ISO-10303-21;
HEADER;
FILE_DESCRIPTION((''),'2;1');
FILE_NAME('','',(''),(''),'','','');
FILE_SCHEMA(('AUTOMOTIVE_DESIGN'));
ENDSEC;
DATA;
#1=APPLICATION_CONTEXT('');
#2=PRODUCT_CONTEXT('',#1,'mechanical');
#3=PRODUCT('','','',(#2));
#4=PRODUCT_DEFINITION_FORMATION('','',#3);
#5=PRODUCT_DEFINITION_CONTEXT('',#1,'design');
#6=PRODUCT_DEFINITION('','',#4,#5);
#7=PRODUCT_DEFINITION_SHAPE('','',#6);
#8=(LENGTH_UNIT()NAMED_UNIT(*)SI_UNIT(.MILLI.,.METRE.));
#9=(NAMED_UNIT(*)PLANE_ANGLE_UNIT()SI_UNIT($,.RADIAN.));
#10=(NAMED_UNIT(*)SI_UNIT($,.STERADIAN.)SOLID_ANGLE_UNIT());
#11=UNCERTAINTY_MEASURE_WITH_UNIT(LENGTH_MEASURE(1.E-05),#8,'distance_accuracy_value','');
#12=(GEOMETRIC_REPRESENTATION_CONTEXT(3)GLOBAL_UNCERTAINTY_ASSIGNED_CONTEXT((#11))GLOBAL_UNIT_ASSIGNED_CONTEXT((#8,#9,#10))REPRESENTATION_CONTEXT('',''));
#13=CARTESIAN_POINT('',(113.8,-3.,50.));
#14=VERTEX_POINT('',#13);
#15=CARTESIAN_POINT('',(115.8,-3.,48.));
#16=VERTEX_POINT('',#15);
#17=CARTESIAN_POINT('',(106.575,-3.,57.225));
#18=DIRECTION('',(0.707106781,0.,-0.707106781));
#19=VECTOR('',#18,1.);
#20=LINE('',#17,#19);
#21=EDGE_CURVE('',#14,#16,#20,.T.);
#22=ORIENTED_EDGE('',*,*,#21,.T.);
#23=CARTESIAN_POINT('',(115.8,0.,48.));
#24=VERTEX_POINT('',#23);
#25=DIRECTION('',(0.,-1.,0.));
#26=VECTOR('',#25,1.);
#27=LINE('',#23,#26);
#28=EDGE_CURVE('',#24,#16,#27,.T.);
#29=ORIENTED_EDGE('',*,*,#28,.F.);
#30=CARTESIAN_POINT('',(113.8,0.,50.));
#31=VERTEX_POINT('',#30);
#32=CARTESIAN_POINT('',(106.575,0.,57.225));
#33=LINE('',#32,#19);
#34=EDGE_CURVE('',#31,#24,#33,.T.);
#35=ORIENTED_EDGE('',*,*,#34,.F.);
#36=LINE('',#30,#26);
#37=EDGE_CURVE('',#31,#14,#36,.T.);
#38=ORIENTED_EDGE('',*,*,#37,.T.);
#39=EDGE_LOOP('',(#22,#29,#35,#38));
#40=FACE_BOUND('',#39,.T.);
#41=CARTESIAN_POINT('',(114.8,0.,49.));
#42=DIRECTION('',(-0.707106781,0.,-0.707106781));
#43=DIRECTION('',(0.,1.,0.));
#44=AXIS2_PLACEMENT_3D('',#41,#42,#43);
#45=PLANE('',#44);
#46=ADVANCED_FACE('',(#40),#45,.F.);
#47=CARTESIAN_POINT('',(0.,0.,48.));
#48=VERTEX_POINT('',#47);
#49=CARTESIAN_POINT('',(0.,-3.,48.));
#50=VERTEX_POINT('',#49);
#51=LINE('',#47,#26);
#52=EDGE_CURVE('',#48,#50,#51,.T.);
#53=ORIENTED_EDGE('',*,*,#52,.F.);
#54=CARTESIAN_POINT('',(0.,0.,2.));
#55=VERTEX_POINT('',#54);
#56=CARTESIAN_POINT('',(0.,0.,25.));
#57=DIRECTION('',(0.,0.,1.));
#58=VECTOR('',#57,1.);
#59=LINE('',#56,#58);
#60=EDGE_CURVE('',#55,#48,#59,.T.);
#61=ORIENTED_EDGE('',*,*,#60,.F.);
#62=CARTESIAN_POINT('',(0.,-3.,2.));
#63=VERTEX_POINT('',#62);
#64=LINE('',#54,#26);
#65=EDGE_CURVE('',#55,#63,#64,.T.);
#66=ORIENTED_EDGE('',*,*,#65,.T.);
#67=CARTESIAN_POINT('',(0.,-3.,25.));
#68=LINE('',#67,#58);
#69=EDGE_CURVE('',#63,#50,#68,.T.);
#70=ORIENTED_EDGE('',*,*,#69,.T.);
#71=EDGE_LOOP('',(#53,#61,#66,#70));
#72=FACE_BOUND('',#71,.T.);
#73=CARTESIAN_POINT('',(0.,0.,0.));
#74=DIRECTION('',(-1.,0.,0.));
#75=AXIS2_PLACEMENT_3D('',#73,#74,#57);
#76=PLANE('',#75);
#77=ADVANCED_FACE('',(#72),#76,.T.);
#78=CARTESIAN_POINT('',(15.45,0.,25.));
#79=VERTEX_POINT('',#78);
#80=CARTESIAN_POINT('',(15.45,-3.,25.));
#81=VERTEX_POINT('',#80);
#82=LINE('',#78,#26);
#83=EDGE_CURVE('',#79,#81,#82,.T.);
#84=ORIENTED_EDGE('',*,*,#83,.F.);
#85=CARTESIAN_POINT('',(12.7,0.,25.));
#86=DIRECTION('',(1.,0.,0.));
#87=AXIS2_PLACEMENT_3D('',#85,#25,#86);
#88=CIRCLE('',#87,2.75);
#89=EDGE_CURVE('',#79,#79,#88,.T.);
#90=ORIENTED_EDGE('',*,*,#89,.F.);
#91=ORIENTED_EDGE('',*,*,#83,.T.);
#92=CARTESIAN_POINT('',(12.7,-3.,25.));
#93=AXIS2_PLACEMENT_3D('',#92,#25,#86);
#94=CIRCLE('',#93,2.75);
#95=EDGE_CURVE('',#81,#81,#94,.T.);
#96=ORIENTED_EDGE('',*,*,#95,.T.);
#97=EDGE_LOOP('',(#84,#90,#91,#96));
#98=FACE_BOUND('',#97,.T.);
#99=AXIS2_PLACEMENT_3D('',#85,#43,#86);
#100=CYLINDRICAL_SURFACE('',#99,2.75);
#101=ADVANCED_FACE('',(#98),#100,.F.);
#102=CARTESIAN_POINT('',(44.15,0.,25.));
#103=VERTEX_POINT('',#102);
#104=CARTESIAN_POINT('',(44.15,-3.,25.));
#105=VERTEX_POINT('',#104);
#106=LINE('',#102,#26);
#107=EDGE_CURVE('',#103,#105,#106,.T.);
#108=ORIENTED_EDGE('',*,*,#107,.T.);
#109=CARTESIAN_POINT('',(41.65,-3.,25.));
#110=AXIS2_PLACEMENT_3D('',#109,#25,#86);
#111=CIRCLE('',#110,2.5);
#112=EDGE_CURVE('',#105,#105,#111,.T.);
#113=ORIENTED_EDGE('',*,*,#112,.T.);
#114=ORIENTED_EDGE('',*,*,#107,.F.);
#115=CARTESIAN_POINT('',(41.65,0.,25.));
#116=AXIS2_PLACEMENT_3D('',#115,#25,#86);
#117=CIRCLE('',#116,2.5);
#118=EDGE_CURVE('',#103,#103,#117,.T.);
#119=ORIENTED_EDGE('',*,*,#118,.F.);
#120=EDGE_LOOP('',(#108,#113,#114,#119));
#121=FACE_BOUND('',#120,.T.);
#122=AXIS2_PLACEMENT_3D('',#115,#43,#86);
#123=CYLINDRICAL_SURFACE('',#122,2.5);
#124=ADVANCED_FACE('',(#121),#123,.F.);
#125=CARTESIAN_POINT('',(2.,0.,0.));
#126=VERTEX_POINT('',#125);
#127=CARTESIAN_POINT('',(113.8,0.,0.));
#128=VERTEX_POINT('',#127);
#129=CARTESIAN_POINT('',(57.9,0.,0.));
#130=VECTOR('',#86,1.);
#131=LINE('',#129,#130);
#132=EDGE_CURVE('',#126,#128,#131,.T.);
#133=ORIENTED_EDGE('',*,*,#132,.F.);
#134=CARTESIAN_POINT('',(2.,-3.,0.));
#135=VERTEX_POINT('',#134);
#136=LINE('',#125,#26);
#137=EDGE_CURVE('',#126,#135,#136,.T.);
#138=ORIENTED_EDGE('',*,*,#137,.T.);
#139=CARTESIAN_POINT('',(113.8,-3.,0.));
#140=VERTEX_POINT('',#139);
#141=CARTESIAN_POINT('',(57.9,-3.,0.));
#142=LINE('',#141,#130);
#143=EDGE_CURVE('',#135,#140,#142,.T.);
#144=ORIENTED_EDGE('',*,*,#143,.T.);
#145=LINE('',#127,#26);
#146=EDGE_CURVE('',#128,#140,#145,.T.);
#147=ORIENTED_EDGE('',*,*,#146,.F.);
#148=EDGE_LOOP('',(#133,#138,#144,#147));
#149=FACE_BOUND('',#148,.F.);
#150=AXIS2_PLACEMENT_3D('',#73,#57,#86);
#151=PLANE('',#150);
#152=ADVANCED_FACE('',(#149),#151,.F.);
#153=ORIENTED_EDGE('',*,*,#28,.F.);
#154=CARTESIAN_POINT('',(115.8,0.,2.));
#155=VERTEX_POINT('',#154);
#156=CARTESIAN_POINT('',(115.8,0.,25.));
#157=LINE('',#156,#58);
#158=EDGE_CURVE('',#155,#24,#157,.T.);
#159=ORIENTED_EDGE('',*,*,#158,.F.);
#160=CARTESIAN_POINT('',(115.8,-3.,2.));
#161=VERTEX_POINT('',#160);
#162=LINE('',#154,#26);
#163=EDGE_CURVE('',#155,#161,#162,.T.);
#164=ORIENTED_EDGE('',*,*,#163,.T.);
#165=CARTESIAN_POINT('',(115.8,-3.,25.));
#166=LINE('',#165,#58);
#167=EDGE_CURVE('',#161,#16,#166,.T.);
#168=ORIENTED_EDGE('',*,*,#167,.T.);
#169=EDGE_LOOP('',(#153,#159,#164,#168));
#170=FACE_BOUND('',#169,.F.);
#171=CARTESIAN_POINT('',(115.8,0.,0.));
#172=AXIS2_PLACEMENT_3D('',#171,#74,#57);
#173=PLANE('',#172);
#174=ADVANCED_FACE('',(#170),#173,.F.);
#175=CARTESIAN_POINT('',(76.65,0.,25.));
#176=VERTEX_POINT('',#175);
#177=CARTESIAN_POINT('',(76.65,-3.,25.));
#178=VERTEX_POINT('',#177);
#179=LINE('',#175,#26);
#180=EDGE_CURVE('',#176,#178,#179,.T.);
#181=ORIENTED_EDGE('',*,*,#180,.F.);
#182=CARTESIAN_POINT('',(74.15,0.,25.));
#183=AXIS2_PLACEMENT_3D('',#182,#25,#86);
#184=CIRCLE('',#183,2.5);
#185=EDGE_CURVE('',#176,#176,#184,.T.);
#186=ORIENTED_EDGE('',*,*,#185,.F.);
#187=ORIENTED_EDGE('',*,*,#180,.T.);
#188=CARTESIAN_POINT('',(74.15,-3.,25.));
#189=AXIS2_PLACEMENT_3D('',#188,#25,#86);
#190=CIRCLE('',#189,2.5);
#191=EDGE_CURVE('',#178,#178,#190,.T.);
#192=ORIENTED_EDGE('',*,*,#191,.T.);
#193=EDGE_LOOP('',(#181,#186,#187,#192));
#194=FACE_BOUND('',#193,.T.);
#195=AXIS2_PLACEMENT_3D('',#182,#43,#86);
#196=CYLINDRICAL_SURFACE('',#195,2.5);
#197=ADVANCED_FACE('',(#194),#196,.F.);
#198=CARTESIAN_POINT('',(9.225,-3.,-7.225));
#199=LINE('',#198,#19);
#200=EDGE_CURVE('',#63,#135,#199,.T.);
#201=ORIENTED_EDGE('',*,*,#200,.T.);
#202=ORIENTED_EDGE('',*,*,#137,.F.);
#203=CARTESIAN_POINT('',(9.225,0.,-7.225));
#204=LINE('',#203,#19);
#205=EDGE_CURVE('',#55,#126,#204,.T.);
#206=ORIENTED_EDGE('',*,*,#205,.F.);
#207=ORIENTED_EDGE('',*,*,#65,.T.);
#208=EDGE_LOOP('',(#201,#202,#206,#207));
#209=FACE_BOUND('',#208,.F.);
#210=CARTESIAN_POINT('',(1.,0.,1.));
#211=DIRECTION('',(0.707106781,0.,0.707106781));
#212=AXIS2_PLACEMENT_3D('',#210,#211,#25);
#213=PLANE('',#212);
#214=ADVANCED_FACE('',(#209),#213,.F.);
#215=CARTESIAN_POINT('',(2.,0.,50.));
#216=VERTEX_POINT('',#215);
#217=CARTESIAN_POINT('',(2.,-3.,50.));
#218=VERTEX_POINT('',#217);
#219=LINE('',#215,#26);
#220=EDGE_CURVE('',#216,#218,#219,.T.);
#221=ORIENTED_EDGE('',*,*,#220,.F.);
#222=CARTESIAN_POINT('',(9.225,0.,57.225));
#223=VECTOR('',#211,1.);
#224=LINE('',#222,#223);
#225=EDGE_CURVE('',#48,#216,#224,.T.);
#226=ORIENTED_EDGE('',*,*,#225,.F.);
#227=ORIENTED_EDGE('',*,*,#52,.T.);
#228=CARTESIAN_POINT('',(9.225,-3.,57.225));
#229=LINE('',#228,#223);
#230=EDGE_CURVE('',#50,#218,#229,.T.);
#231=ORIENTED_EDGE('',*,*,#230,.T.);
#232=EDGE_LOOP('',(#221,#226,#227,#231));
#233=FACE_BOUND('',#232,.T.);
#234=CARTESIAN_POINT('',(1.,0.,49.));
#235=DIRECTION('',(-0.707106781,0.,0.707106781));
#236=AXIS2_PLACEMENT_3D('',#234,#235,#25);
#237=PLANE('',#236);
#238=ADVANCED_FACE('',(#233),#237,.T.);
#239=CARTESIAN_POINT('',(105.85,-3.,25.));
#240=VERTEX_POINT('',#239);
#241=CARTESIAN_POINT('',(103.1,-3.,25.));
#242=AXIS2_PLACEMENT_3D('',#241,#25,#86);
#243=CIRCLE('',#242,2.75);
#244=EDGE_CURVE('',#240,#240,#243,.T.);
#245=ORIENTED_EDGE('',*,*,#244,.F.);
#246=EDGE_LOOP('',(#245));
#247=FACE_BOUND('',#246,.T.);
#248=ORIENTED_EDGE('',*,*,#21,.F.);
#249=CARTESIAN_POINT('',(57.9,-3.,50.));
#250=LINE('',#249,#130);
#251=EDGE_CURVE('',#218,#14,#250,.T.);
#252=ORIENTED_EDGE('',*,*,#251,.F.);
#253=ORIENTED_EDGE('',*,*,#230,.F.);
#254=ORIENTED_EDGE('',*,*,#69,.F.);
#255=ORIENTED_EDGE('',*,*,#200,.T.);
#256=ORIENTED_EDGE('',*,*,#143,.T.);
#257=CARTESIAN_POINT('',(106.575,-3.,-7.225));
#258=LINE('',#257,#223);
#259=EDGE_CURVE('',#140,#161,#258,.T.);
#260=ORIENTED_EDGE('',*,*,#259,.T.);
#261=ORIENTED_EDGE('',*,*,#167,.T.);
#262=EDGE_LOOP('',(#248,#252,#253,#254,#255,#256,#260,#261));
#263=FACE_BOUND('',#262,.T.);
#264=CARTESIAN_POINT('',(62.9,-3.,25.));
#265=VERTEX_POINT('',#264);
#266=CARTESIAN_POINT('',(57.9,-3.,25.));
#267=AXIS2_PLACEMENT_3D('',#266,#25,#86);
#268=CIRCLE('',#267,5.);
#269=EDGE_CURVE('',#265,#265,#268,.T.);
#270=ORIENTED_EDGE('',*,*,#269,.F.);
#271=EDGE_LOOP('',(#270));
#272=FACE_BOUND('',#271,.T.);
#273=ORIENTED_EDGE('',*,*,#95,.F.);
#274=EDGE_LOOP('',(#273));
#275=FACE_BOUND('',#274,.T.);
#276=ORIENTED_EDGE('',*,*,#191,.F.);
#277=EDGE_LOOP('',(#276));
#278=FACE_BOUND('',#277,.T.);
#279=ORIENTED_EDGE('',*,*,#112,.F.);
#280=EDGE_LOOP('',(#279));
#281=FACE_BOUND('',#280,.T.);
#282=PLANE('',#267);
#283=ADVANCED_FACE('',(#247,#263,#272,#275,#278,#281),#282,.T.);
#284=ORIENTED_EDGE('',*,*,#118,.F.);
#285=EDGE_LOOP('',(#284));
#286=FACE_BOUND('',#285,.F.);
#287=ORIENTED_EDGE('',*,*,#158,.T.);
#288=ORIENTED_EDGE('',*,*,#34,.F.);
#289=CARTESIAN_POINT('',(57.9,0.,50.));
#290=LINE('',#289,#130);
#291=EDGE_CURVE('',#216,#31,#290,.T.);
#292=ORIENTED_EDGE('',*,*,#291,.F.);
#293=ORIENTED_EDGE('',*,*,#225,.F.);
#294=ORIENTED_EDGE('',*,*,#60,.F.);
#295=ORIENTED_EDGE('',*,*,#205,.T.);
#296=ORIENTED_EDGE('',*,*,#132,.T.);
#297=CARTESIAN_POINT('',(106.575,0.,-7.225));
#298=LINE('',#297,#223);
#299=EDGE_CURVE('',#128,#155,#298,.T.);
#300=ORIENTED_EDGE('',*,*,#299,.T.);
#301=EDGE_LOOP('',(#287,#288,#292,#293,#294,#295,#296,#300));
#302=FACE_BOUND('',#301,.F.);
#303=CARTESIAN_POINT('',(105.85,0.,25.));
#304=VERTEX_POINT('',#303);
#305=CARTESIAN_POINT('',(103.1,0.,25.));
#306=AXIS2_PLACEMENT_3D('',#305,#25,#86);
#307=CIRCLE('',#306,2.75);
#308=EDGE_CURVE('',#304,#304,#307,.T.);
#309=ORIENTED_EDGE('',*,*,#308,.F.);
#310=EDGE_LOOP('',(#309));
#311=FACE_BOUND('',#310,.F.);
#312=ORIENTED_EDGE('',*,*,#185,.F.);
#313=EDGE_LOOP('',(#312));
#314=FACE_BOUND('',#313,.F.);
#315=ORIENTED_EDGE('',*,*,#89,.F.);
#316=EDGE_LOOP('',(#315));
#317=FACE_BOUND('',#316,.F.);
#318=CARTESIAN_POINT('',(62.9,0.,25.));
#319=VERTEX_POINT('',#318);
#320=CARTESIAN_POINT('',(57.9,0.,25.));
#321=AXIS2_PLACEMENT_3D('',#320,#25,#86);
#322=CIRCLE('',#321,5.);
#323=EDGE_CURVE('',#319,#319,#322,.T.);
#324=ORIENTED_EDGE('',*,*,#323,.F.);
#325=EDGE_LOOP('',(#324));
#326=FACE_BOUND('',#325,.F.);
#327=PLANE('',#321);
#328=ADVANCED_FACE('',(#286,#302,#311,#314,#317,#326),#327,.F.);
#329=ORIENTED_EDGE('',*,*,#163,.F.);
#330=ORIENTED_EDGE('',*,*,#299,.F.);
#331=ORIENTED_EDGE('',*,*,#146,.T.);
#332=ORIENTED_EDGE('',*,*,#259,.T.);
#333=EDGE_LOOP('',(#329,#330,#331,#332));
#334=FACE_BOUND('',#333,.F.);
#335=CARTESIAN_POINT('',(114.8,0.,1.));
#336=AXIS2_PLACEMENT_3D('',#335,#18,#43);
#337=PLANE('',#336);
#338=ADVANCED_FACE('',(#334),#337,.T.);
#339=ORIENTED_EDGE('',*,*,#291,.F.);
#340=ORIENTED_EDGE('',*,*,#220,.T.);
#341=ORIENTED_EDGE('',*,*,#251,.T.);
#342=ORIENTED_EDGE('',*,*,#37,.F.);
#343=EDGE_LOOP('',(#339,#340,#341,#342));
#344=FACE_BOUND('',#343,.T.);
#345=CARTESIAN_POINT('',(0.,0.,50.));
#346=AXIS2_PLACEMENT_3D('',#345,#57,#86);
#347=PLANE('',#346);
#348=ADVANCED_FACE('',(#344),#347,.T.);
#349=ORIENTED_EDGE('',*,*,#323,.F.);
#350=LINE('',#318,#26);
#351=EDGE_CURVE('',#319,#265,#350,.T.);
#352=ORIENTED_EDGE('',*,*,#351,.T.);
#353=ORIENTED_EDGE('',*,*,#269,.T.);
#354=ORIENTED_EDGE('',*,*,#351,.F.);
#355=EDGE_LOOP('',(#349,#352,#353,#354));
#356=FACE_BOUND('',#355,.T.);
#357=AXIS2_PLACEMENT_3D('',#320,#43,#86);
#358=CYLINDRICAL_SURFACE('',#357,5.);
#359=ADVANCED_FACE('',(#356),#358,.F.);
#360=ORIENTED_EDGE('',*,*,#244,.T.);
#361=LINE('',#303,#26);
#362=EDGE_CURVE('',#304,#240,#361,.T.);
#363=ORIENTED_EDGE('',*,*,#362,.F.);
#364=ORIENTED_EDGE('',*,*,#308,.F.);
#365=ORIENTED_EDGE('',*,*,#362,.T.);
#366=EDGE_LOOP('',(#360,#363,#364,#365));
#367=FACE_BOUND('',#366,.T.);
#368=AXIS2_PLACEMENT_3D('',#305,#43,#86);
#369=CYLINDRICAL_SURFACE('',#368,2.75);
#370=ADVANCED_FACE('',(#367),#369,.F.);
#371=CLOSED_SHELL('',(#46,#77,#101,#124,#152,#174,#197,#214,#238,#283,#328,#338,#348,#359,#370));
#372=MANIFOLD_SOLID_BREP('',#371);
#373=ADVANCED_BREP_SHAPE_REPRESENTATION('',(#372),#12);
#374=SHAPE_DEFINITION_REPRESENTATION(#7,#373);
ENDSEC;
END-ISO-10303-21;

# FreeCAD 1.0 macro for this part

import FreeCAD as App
import Part
import Sketcher


def edges_at(feature, points):
    """Names of the edges that pass closest to the given points."""
    edges = feature.Shape.Edges
    near = lambda p: min(range(len(edges)), key=lambda i: edges[i].distToShape(Part.Vertex(*p))[0])
    return sorted({f"Edge{near(p) + 1}" for p in points})


def add_polygon(sketch, points):
    """Adds a closed chain of lines whose ends are joined by coincident constraints."""
    first, n = sketch.GeometryCount, len(points)
    for a, b in zip(points, points[1:] + points[:1]):
        sketch.addGeometry(Part.LineSegment(App.Vector(*a, 0), App.Vector(*b, 0)), False)
    for i in range(n):
        sketch.addConstraint(Sketcher.Constraint("Coincident", first + i, 2, first + (i + 1) % n, 1))

doc = App.newDocument("Part")
body = doc.addObject("PartDesign::Body", "Body")

sketch1 = doc.addObject("Sketcher::SketchObject", "Sketch")
body.addObject(sketch1)
sketch1.AttachmentSupport = (doc.XZ_Plane, [""])
sketch1.MapMode = "FlatFace"
add_polygon(sketch1, [(0, 50), (0, 0), (115.8, 0), (115.8, 50)])
sketch1.addGeometry(Part.Circle(App.Vector(12.7, 25, 0), App.Vector(0, 0, 1), 2.75), False)
sketch1.addGeometry(Part.Circle(App.Vector(41.65, 25, 0), App.Vector(0, 0, 1), 2.5), False)
sketch1.addGeometry(Part.Circle(App.Vector(57.9, 25, 0), App.Vector(0, 0, 1), 5), False)
sketch1.addGeometry(Part.Circle(App.Vector(74.15, 25, 0), App.Vector(0, 0, 1), 2.5), False)
sketch1.addGeometry(Part.Circle(App.Vector(103.1, 25, 0), App.Vector(0, 0, 1), 2.75), False)
sketch1.addConstraint([
    Sketcher.Constraint("Vertical", 0),
    Sketcher.Constraint("Horizontal", 1),
    Sketcher.Constraint("Vertical", 2),
    Sketcher.Constraint("Horizontal", 3),
    Sketcher.Constraint("Coincident", 0, 2, -1, 1),
    Sketcher.Constraint("Equal", 5, 7),
    Sketcher.Constraint("Equal", 4, 8),
    Sketcher.Constraint("Horizontal", 4, 3, 5, 3),
    Sketcher.Constraint("Horizontal", 5, 3, 6, 3),
    Sketcher.Constraint("Horizontal", 6, 3, 7, 3),
    Sketcher.Constraint("Horizontal", 7, 3, 8, 3),
    Sketcher.Constraint("Diameter", 5, 5.0),
    Sketcher.Constraint("Diameter", 6, 10.0),
    Sketcher.Constraint("Diameter", 4, 5.5),
    Sketcher.Constraint("DistanceY", 0, 2, 0, 1, 50.0),
    Sketcher.Constraint("DistanceX", 1, 1, 1, 2, 115.8),
    Sketcher.Constraint("DistanceY", -1, 1, 4, 3, 25.0),
    Sketcher.Constraint("DistanceX", -1, 1, 4, 3, 12.7),
    Sketcher.Constraint("DistanceX", -1, 1, 6, 3, 57.9),
    Sketcher.Constraint("DistanceX", -1, 1, 8, 3, 103.1),
    Sketcher.Constraint("DistanceX", 5, 3, 7, 3, 32.5),
    Sketcher.Constraint("DistanceX", -1, 1, 5, 3, 41.65),
])
pad1 = doc.addObject("PartDesign::Pad", "Pad")
body.addObject(pad1)
pad1.Profile = sketch1
pad1.Length = 3
doc.recompute()

chamfer = doc.addObject("PartDesign::Chamfer", "Chamfer")
body.addObject(chamfer)
chamfer.Base = (pad1, edges_at(pad1, [
    (0, -1.5, 0),
    (0, -1.5, 50),
    (115.8, -1.5, 0),
    (115.8, -1.5, 50),
]))
chamfer.Size = 2

doc.recompute()
